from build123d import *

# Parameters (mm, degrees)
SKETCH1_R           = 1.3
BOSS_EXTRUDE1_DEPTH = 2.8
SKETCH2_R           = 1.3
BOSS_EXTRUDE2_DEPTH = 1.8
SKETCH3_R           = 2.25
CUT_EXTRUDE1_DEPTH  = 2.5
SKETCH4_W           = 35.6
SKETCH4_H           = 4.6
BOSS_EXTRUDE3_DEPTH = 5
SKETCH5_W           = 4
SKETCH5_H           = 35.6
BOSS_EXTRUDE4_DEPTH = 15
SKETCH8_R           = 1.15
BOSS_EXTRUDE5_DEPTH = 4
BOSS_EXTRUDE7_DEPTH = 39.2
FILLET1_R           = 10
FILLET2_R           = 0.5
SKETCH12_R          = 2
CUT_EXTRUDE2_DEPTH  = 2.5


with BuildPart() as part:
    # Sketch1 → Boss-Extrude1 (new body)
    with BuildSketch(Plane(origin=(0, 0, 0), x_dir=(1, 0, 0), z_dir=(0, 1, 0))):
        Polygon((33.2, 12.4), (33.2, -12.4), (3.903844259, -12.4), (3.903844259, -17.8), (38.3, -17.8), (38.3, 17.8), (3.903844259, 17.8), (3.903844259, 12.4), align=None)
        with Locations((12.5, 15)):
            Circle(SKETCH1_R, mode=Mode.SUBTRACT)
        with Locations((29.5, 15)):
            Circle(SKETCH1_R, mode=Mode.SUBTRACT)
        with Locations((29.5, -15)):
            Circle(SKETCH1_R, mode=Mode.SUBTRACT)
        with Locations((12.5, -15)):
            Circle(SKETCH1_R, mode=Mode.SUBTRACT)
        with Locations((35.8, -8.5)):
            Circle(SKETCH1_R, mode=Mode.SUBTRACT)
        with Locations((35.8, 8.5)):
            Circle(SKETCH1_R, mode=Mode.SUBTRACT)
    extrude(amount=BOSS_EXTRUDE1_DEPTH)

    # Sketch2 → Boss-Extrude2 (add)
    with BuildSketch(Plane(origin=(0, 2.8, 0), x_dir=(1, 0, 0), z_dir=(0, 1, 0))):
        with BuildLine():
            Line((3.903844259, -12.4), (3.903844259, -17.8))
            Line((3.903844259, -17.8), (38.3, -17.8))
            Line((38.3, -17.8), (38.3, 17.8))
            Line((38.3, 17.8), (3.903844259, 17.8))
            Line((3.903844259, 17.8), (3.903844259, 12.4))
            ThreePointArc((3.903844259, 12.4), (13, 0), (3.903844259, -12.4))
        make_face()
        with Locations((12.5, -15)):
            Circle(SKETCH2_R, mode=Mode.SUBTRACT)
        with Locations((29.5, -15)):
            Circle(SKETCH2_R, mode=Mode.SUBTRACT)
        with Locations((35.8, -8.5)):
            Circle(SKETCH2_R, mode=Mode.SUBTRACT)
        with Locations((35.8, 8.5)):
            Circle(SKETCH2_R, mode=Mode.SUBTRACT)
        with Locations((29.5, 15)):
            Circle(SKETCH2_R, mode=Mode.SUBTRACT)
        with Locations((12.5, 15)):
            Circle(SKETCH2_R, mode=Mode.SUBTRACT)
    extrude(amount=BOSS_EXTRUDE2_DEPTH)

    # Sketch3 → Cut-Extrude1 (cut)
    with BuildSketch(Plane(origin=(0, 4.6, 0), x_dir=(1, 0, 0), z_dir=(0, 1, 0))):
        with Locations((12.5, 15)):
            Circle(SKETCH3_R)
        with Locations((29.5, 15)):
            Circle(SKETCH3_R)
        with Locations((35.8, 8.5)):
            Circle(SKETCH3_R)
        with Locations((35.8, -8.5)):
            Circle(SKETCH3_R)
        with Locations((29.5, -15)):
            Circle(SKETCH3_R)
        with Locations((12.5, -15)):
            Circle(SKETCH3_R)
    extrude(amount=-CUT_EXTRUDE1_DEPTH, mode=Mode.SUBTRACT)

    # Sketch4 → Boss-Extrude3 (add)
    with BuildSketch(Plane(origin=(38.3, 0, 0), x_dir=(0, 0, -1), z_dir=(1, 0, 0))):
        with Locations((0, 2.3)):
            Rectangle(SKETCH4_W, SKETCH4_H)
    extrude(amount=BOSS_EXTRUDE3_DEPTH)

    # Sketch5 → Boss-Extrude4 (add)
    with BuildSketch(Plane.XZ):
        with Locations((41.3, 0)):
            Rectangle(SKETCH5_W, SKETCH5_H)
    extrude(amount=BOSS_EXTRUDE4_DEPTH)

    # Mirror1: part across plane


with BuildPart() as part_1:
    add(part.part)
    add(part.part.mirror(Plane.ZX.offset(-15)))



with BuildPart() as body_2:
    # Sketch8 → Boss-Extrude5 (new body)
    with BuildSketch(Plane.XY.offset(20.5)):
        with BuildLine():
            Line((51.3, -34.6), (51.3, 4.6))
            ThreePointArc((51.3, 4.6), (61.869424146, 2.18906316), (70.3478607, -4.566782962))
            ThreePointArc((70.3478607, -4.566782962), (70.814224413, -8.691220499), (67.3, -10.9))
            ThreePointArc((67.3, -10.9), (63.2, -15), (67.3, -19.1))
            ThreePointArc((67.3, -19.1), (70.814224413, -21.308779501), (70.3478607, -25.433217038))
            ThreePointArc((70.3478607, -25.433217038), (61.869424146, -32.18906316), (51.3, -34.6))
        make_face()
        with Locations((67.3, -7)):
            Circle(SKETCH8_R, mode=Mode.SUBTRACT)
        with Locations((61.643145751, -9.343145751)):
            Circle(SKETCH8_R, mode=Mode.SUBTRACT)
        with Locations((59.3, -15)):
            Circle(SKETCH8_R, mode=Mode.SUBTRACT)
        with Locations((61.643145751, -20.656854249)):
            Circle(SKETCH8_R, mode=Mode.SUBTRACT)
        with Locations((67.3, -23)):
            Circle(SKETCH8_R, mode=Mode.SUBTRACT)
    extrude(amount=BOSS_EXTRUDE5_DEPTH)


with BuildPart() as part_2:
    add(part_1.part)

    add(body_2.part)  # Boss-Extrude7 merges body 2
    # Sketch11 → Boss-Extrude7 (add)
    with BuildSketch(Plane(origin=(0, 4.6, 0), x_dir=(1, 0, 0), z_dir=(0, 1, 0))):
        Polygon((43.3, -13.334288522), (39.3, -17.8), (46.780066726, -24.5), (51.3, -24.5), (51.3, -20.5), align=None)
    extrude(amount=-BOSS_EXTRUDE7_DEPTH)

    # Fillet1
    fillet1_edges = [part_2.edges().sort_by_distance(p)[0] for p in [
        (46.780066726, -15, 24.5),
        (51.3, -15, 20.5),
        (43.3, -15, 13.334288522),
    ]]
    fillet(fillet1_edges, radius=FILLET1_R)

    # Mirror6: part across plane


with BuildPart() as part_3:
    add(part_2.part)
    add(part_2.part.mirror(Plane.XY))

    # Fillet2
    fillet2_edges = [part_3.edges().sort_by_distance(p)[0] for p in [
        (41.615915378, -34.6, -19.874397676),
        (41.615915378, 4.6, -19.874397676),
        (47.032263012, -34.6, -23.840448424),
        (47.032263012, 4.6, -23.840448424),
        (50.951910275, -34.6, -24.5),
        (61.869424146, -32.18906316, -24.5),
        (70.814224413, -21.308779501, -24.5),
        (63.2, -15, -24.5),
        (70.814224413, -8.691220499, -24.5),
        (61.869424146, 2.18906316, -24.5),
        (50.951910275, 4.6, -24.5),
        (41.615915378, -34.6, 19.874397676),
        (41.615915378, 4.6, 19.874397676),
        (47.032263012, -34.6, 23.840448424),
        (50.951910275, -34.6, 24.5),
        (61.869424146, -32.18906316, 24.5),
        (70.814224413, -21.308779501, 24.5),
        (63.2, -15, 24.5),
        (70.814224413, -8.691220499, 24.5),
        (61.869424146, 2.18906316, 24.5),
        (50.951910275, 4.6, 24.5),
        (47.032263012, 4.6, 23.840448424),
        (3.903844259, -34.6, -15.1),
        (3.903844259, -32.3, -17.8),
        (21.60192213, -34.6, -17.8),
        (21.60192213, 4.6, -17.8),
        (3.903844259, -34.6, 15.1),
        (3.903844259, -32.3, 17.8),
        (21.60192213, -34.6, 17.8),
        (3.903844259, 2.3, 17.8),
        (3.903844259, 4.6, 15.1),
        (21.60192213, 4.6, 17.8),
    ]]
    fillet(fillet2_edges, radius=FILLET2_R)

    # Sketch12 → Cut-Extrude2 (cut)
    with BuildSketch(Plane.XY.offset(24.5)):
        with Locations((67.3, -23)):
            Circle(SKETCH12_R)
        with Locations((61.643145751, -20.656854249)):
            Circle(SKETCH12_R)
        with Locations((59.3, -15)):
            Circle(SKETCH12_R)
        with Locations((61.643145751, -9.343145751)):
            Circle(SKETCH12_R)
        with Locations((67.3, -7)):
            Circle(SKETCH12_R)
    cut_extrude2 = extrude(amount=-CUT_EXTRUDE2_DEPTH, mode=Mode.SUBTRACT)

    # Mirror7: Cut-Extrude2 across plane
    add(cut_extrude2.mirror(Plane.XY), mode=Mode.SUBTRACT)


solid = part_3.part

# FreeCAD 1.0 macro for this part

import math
import FreeCAD as App
import Part
import Sketcher


def edges_at(feature, points):
    """Names of the edges that pass closest to the given points."""
    edges = feature.Shape.Edges
    near = lambda p: min(range(len(edges)), key=lambda i: edges[i].distToShape(Part.Vertex(*p))[0])
    return sorted({f"Edge{near(p) + 1}" for p in points})

doc = App.newDocument("Part")
body = doc.addObject("PartDesign::Body", "Body")

sketch1 = body.newObject("Sketcher::SketchObject", "Sketch")
sketch1.AttachmentSupport = (doc.getObject("XZ_Plane"), [""])
sketch1.MapMode = "FlatFace"
sketch1.addGeometry(Part.LineSegment(App.Vector(33.2, -12.4, 0), App.Vector(33.2, 12.4, 0)), False)
sketch1.addGeometry(Part.LineSegment(App.Vector(33.2, 12.4, 0), App.Vector(3.903844, 12.4, 0)), False)
sketch1.addGeometry(Part.LineSegment(App.Vector(3.903844, 12.4, 0), App.Vector(3.903844, 17.8, 0)), False)
sketch1.addGeometry(Part.LineSegment(App.Vector(3.903844, 17.8, 0), App.Vector(38.3, 17.8, 0)), False)
sketch1.addGeometry(Part.LineSegment(App.Vector(38.3, 17.8, 0), App.Vector(38.3, -17.8, 0)), False)
sketch1.addGeometry(Part.LineSegment(App.Vector(38.3, -17.8, 0), App.Vector(3.903844, -17.8, 0)), False)
sketch1.addGeometry(Part.LineSegment(App.Vector(3.903844, -17.8, 0), App.Vector(3.903844, -12.4, 0)), False)
sketch1.addGeometry(Part.LineSegment(App.Vector(3.903844, -12.4, 0), App.Vector(33.2, -12.4, 0)), False)
sketch1.addGeometry(Part.Circle(App.Vector(12.5, 15, 0), App.Vector(0, 0, 1), 1.3), False)
sketch1.addGeometry(Part.Circle(App.Vector(29.5, 15, 0), App.Vector(0, 0, 1), 1.3), False)
sketch1.addGeometry(Part.Circle(App.Vector(35.8, 8.5, 0), App.Vector(0, 0, 1), 1.3), False)
sketch1.addGeometry(Part.Circle(App.Vector(12.5, -15, 0), App.Vector(0, 0, 1), 1.3), False)
sketch1.addGeometry(Part.Circle(App.Vector(29.5, -15, 0), App.Vector(0, 0, 1), 1.3), False)
sketch1.addGeometry(Part.Circle(App.Vector(35.8, -8.5, 0), App.Vector(0, 0, 1), 1.3), False)
sketch1.addConstraint(Sketcher.Constraint("Coincident", 0, 2, 1, 1))
sketch1.addConstraint(Sketcher.Constraint("Coincident", 1, 2, 2, 1))
sketch1.addConstraint(Sketcher.Constraint("Coincident", 2, 2, 3, 1))
sketch1.addConstraint(Sketcher.Constraint("Coincident", 3, 2, 4, 1))
sketch1.addConstraint(Sketcher.Constraint("Coincident", 4, 2, 5, 1))
sketch1.addConstraint(Sketcher.Constraint("Coincident", 5, 2, 6, 1))
sketch1.addConstraint(Sketcher.Constraint("Coincident", 6, 2, 7, 1))
sketch1.addConstraint(Sketcher.Constraint("Coincident", 7, 2, 0, 1))
sketch1.addConstraint(Sketcher.Constraint("Vertical", 0))
sketch1.addConstraint(Sketcher.Constraint("Horizontal", 1))
sketch1.addConstraint(Sketcher.Constraint("Vertical", 2))
sketch1.addConstraint(Sketcher.Constraint("Horizontal", 3))
sketch1.addConstraint(Sketcher.Constraint("Vertical", 4))
sketch1.addConstraint(Sketcher.Constraint("Horizontal", 5))
sketch1.addConstraint(Sketcher.Constraint("Vertical", 6))
sketch1.addConstraint(Sketcher.Constraint("Horizontal", 7))
sketch1.addConstraint(Sketcher.Constraint("Equal", 8, 9))
sketch1.addConstraint(Sketcher.Constraint("Equal", 9, 10))
sketch1.addConstraint(Sketcher.Constraint("Equal", 10, 11))
sketch1.addConstraint(Sketcher.Constraint("Equal", 11, 12))
sketch1.addConstraint(Sketcher.Constraint("Equal", 12, 13))
sketch1.addConstraint(Sketcher.Constraint("Symmetric", 8, 3, 11, 3, -1))
sketch1.addConstraint(Sketcher.Constraint("Symmetric", 9, 3, 12, 3, -1))
sketch1.addConstraint(Sketcher.Constraint("Symmetric", 10, 3, 13, 3, -1))
sketch1.addConstraint(Sketcher.Constraint("Symmetric", 2, 2, 5, 2, -1))
sketch1.addConstraint(Sketcher.Constraint("Horizontal", 8, 3, 9, 3))
sketch1.addConstraint(Sketcher.Constraint("Equal", 2, 6))
sketch1.addConstraint(Sketcher.Constraint("Diameter", 8, 2.6))
sketch1.addConstraint(Sketcher.Constraint("DistanceY", 0, 1, 0, 2, 24.8))
sketch1.addConstraint(Sketcher.Constraint("DistanceY", 2, 1, 2, 2, 5.4))
sketch1.addConstraint(Sketcher.Constraint("DistanceY", -1, 1, 8, 3, 15.0))
sketch1.addConstraint(Sketcher.Constraint("DistanceX", 8, 3, 9, 3, 17.0))
sketch1.addConstraint(Sketcher.Constraint("DistanceY", 13, 3, 10, 3, 17.0))
sketch1.addConstraint(Sketcher.Constraint("DistanceX", -1, 1, 8, 3, 12.5))
sketch1.addConstraint(Sketcher.Constraint("DistanceX", -1, 1, 10, 3, 35.8))
sketch1.addConstraint(Sketcher.Constraint("DistanceX", -1, 1, 0, 2, 33.2))
sketch1.addConstraint(Sketcher.Constraint("DistanceX", -1, 1, 3, 2, 38.3))
sketch1.addConstraint(Sketcher.Constraint("DistanceX", 1, 2, 1, 1, 29.296156))
pad1 = body.newObject("PartDesign::Pad", "Pad")
pad1.Profile = sketch1
pad1.Length = 2.8
pad1.Reversed = True

sketch2 = body.newObject("Sketcher::SketchObject", "Sketch001")
sketch2.AttachmentSupport = (doc.getObject("XZ_Plane"), [""])
sketch2.MapMode = "FlatFace"
sketch2.AttachmentOffset = App.Placement(App.Vector(0, 0, -2.8), App.Rotation())
sketch2.addGeometry(Part.LineSegment(App.Vector(3.903844, 12.4, 0), App.Vector(3.903844, 17.8, 0)), False)
sketch2.addGeometry(Part.LineSegment(App.Vector(3.903844, 17.8, 0), App.Vector(38.3, 17.8, 0)), False)
sketch2.addGeometry(Part.LineSegment(App.Vector(38.3, 17.8, 0), App.Vector(38.3, -17.8, 0)), False)
sketch2.addGeometry(Part.LineSegment(App.Vector(38.3, -17.8, 0), App.Vector(3.903844, -17.8, 0)), False)
sketch2.addGeometry(Part.LineSegment(App.Vector(3.903844, -17.8, 0), App.Vector(3.903844, -12.4, 0)), False)
sketch2.addGeometry(Part.ArcOfCircle(Part.Circle(App.Vector(0, 0, 0), App.Vector(0, 0, 1), 13), math.radians(-72.524635), math.radians(72.524635)), False)
sketch2.addGeometry(Part.Circle(App.Vector(12.5, 15, 0), App.Vector(0, 0, 1), 1.3), False)
sketch2.addGeometry(Part.Circle(App.Vector(29.5, 15, 0), App.Vector(0, 0, 1), 1.3), False)
sketch2.addGeometry(Part.Circle(App.Vector(35.8, 8.5, 0), App.Vector(0, 0, 1), 1.3), False)
sketch2.addGeometry(Part.Circle(App.Vector(12.5, -15, 0), App.Vector(0, 0, 1), 1.3), False)
sketch2.addGeometry(Part.Circle(App.Vector(29.5, -15, 0), App.Vector(0, 0, 1), 1.3), False)
sketch2.addGeometry(Part.Circle(App.Vector(35.8, -8.5, 0), App.Vector(0, 0, 1), 1.3), False)
sketch2.addConstraint(Sketcher.Constraint("Coincident", 0, 2, 1, 1))
sketch2.addConstraint(Sketcher.Constraint("Coincident", 1, 2, 2, 1))
sketch2.addConstraint(Sketcher.Constraint("Coincident", 2, 2, 3, 1))
sketch2.addConstraint(Sketcher.Constraint("Coincident", 3, 2, 4, 1))
sketch2.addConstraint(Sketcher.Constraint("Coincident", 4, 2, 5, 1))
sketch2.addConstraint(Sketcher.Constraint("Coincident", 5, 2, 0, 1))
sketch2.addConstraint(Sketcher.Constraint("Vertical", 0))
sketch2.addConstraint(Sketcher.Constraint("Horizontal", 1))
sketch2.addConstraint(Sketcher.Constraint("Vertical", 2))
sketch2.addConstraint(Sketcher.Constraint("Horizontal", 3))
sketch2.addConstraint(Sketcher.Constraint("Vertical", 4))
sketch2.addConstraint(Sketcher.Constraint("Coincident", 5, 3, -1, 1))
sketch2.addConstraint(Sketcher.Constraint("Equal", 6, 7))
sketch2.addConstraint(Sketcher.Constraint("Equal", 7, 8))
sketch2.addConstraint(Sketcher.Constraint("Equal", 8, 9))
sketch2.addConstraint(Sketcher.Constraint("Equal", 9, 10))
sketch2.addConstraint(Sketcher.Constraint("Equal", 10, 11))
sketch2.addConstraint(Sketcher.Constraint("Symmetric", 6, 3, 9, 3, -1))
sketch2.addConstraint(Sketcher.Constraint("Symmetric", 7, 3, 10, 3, -1))
sketch2.addConstraint(Sketcher.Constraint("Symmetric", 8, 3, 11, 3, -1))
sketch2.addConstraint(Sketcher.Constraint("Symmetric", 0, 2, 3, 2, -1))
sketch2.addConstraint(Sketcher.Constraint("Horizontal", 6, 3, 7, 3))
sketch2.addConstraint(Sketcher.Constraint("Radius", 5, 13.0))
sketch2.addConstraint(Sketcher.Constraint("Diameter", 6, 2.6))
sketch2.addConstraint(Sketcher.Constraint("DistanceY", 0, 1, 0, 2, 5.4))
sketch2.addConstraint(Sketcher.Constraint("DistanceY", 2, 2, 2, 1, 35.6))
sketch2.addConstraint(Sketcher.Constraint("DistanceY", -1, 1, 6, 3, 15.0))
sketch2.addConstraint(Sketcher.Constraint("DistanceX", 6, 3, 7, 3, 17.0))
sketch2.addConstraint(Sketcher.Constraint("DistanceY", 11, 3, 8, 3, 17.0))
sketch2.addConstraint(Sketcher.Constraint("DistanceX", -1, 1, 6, 3, 12.5))
sketch2.addConstraint(Sketcher.Constraint("DistanceX", -1, 1, 8, 3, 35.8))
sketch2.addConstraint(Sketcher.Constraint("DistanceX", -1, 1, 1, 2, 38.3))
pad2 = body.newObject("PartDesign::Pad", "Pad001")
pad2.Profile = sketch2
pad2.Length = 1.8
pad2.Reversed = True

sketch3 = body.newObject("Sketcher::SketchObject", "Sketch002")
sketch3.AttachmentSupport = (doc.getObject("XZ_Plane"), [""])
sketch3.MapMode = "FlatFace"
sketch3.AttachmentOffset = App.Placement(App.Vector(0, 0, -4.6), App.Rotation())
sketch3.addGeometry(Part.Circle(App.Vector(12.5, -15, 0), App.Vector(0, 0, 1), 2.25), False)
sketch3.addGeometry(Part.Circle(App.Vector(29.5, -15, 0), App.Vector(0, 0, 1), 2.25), False)
sketch3.addGeometry(Part.Circle(App.Vector(35.8, -8.5, 0), App.Vector(0, 0, 1), 2.25), False)
sketch3.addGeometry(Part.Circle(App.Vector(35.8, 8.5, 0), App.Vector(0, 0, 1), 2.25), False)
sketch3.addGeometry(Part.Circle(App.Vector(29.5, 15, 0), App.Vector(0, 0, 1), 2.25), False)
sketch3.addGeometry(Part.Circle(App.Vector(12.5, 15, 0), App.Vector(0, 0, 1), 2.25), False)
sketch3.addConstraint(Sketcher.Constraint("Equal", 0, 1))
sketch3.addConstraint(Sketcher.Constraint("Equal", 1, 2))
sketch3.addConstraint(Sketcher.Constraint("Equal", 2, 3))
sketch3.addConstraint(Sketcher.Constraint("Equal", 3, 4))
sketch3.addConstraint(Sketcher.Constraint("Equal", 4, 5))
sketch3.addConstraint(Sketcher.Constraint("Symmetric", 2, 3, 3, 3, -1))
sketch3.addConstraint(Sketcher.Constraint("Symmetric", 1, 3, 4, 3, -1))
sketch3.addConstraint(Sketcher.Constraint("Symmetric", 0, 3, 5, 3, -1))
sketch3.addConstraint(Sketcher.Constraint("Horizontal", 0, 3, 1, 3))
sketch3.addConstraint(Sketcher.Constraint("Diameter", 0, 4.5))
sketch3.addConstraint(Sketcher.Constraint("DistanceY", 0, 3, -1, 1, 15.0))
sketch3.addConstraint(Sketcher.Constraint("DistanceX", 0, 3, 1, 3, 17.0))
sketch3.addConstraint(Sketcher.Constraint("DistanceY", 2, 3, 3, 3, 17.0))
sketch3.addConstraint(Sketcher.Constraint("DistanceX", -1, 1, 0, 3, 12.5))
sketch3.addConstraint(Sketcher.Constraint("DistanceX", -1, 1, 2, 3, 35.8))
pocket1 = body.newObject("PartDesign::Pocket", "Pocket")
pocket1.Profile = sketch3
pocket1.Length = 2.5
pocket1.Reversed = True

sketch4 = body.newObject("Sketcher::SketchObject", "Sketch003")
sketch4.AttachmentSupport = (doc.getObject("YZ_Plane"), [""])
sketch4.MapMode = "FlatFace"
sketch4.AttachmentOffset = App.Placement(App.Vector(0, 0, 38.3), App.Rotation())
sketch4.addGeometry(Part.LineSegment(App.Vector(4.6, 17.8, 0), App.Vector(0, 17.8, 0)), False)
sketch4.addGeometry(Part.LineSegment(App.Vector(0, 17.8, 0), App.Vector(0, -17.8, 0)), False)
sketch4.addGeometry(Part.LineSegment(App.Vector(0, -17.8, 0), App.Vector(4.6, -17.8, 0)), False)
sketch4.addGeometry(Part.LineSegment(App.Vector(4.6, -17.8, 0), App.Vector(4.6, 17.8, 0)), False)
sketch4.addConstraint(Sketcher.Constraint("Coincident", 0, 2, 1, 1))
sketch4.addConstraint(Sketcher.Constraint("Coincident", 1, 2, 2, 1))
sketch4.addConstraint(Sketcher.Constraint("Coincident", 2, 2, 3, 1))
sketch4.addConstraint(Sketcher.Constraint("Coincident", 3, 2, 0, 1))
sketch4.addConstraint(Sketcher.Constraint("Horizontal", 0))
sketch4.addConstraint(Sketcher.Constraint("Vertical", 1))
sketch4.addConstraint(Sketcher.Constraint("Horizontal", 2))
sketch4.addConstraint(Sketcher.Constraint("Vertical", 3))
sketch4.addConstraint(Sketcher.Constraint("Symmetric", 0, 2, 1, 2, -1, 1))
sketch4.addConstraint(Sketcher.Constraint("DistanceX", 0, 2, 0, 1, 4.6))
sketch4.addConstraint(Sketcher.Constraint("DistanceY", 1, 2, 1, 1, 35.6))
pad3 = body.newObject("PartDesign::Pad", "Pad002")
pad3.Profile = sketch4
pad3.Length = 5

sketch5 = body.newObject("Sketcher::SketchObject", "Sketch004")
sketch5.AttachmentSupport = (doc.getObject("XZ_Plane"), [""])
sketch5.MapMode = "FlatFace"
sketch5.addGeometry(Part.LineSegment(App.Vector(39.3, 17.8, 0), App.Vector(39.3, -17.8, 0)), False)
sketch5.addGeometry(Part.LineSegment(App.Vector(39.3, -17.8, 0), App.Vector(43.3, -17.8, 0)), False)
sketch5.addGeometry(Part.LineSegment(App.Vector(43.3, -17.8, 0), App.Vector(43.3, 17.8, 0)), False)
sketch5.addGeometry(Part.LineSegment(App.Vector(43.3, 17.8, 0), App.Vector(39.3, 17.8, 0)), False)
sketch5.addConstraint(Sketcher.Constraint("Coincident", 0, 2, 1, 1))
sketch5.addConstraint(Sketcher.Constraint("Coincident", 1, 2, 2, 1))
sketch5.addConstraint(Sketcher.Constraint("Coincident", 2, 2, 3, 1))
sketch5.addConstraint(Sketcher.Constraint("Coincident", 3, 2, 0, 1))
sketch5.addConstraint(Sketcher.Constraint("Vertical", 0))
sketch5.addConstraint(Sketcher.Constraint("Horizontal", 1))
sketch5.addConstraint(Sketcher.Constraint("Vertical", 2))
sketch5.addConstraint(Sketcher.Constraint("Horizontal", 3))
sketch5.addConstraint(Sketcher.Constraint("DistanceX", 1, 1, 1, 2, 4.0))
sketch5.addConstraint(Sketcher.Constraint("DistanceY", 0, 2, 0, 1, 35.6))
sketch5.addConstraint(Sketcher.Constraint("DistanceX", -1, 1, 0, 2, 39.3))
sketch5.addConstraint(Sketcher.Constraint("DistanceY", 0, 2, -1, 1, 17.8))
pad4 = body.newObject("PartDesign::Pad", "Pad003")
pad4.Profile = sketch5
pad4.Length = 15
body2 = doc.addObject("PartDesign::Body", "Body001")
doc.recompute()

body2.BaseFeature = body
doc.recompute()

mirroring = doc.addObject("Part::Mirroring", "Mirroring")
mirroring.Source = body
mirroring.Base = App.Vector(0, -15, 0)
mirroring.Normal = App.Vector(0, 1, 0)
body3 = doc.addObject("PartDesign::Body", "Body002")
body3.BaseFeature = mirroring
boolean = body2.newObject("PartDesign::Boolean", "Boolean")
boolean.Type = "Fuse"
boolean.addObjects([body3])
doc.recompute()
body4 = doc.addObject("PartDesign::Body", "Body003")

sketch6 = body4.newObject("Sketcher::SketchObject", "Sketch005")
sketch6.AttachmentSupport = (doc.getObject("XY_Plane003"), [""])
sketch6.MapMode = "FlatFace"
sketch6.AttachmentOffset = App.Placement(App.Vector(0, 0, 20.5), App.Rotation())
sketch6.addGeometry(Part.LineSegment(App.Vector(51.3, 4.6, 0), App.Vector(51.3, -34.6, 0)), False)
sketch6.addGeometry(Part.ArcOfCircle(Part.Circle(App.Vector(51.3, -10.226623, 0), App.Vector(0, 0, 1), 24.373377), math.radians(-90), math.radians(-38.601628)), False)
sketch6.addGeometry(Part.ArcOfCircle(Part.Circle(App.Vector(67.3, -23, 0), App.Vector(0, 0, 1), 3.9), math.radians(-38.601628), math.radians(90)), False)
sketch6.addGeometry(Part.ArcOfCircle(Part.Circle(App.Vector(67.3, -15, 0), App.Vector(0, 0, 1), 4.1), math.radians(90), math.radians(270)), False)
sketch6.addGeometry(Part.ArcOfCircle(Part.Circle(App.Vector(67.3, -7, 0), App.Vector(0, 0, 1), 3.9), math.radians(-90), math.radians(38.601628)), False)
sketch6.addGeometry(Part.ArcOfCircle(Part.Circle(App.Vector(51.3, -19.773377, 0), App.Vector(0, 0, 1), 24.373377), math.radians(38.601628), math.radians(90)), False)
sketch6.addGeometry(Part.Circle(App.Vector(67.3, -23, 0), App.Vector(0, 0, 1), 1.15), False)
sketch6.addGeometry(Part.Circle(App.Vector(61.643146, -20.656854, 0), App.Vector(0, 0, 1), 1.15), False)
sketch6.addGeometry(Part.Circle(App.Vector(67.3, -7, 0), App.Vector(0, 0, 1), 1.15), False)
sketch6.addGeometry(Part.Circle(App.Vector(59.3, -15, 0), App.Vector(0, 0, 1), 1.15), False)
sketch6.addGeometry(Part.Circle(App.Vector(61.643146, -9.343146, 0), App.Vector(0, 0, 1), 1.15), False)
sketch6.addConstraint(Sketcher.Constraint("Coincident", 0, 2, 1, 1))
sketch6.addConstraint(Sketcher.Constraint("Tangent", 1, 2, 2, 1))
sketch6.addConstraint(Sketcher.Constraint("Tangent", 2, 2, 3, 2))
sketch6.addConstraint(Sketcher.Constraint("Tangent", 3, 1, 4, 1))
sketch6.addConstraint(Sketcher.Constraint("Tangent", 4, 2, 5, 1))
sketch6.addConstraint(Sketcher.Constraint("Coincident", 5, 2, 0, 1))
sketch6.addConstraint(Sketcher.Constraint("Vertical", 0))
sketch6.addConstraint(Sketcher.Constraint("Coincident", 6, 3, 2, 3))
sketch6.addConstraint(Sketcher.Constraint("Coincident", 8, 3, 4, 3))
sketch6.addConstraint(Sketcher.Constraint("Equal", 2, 4))
sketch6.addConstraint(Sketcher.Constraint("Equal", 1, 5))
sketch6.addConstraint(Sketcher.Constraint("Equal", 6, 7))
sketch6.addConstraint(Sketcher.Constraint("Equal", 7, 8))
sketch6.addConstraint(Sketcher.Constraint("Equal", 8, 9))
sketch6.addConstraint(Sketcher.Constraint("Equal", 9, 10))
sketch6.addConstraint(Sketcher.Constraint("Horizontal", 3, 3, 9, 3))
sketch6.addConstraint(Sketcher.Constraint("Vertical", 2, 3, 3, 3))
sketch6.addConstraint(Sketcher.Constraint("Vertical", 3, 3, 4, 3))
sketch6.addConstraint(Sketcher.Constraint("Vertical", 1, 3, 5, 3))
sketch6.addConstraint(Sketcher.Constraint("Vertical", 7, 3, 10, 3))
sketch6.addConstraint(Sketcher.Constraint("Vertical", 5, 3, 0, 2))
sketch6.addConstraint(Sketcher.Constraint("Diameter", 6, 2.3))
sketch6.addConstraint(Sketcher.Constraint("Radius", 2, 3.9))
sketch6.addConstraint(Sketcher.Constraint("Radius", 3, 4.1))
sketch6.addConstraint(Sketcher.Constraint("DistanceY", 0, 2, 0, 1, 39.2))
sketch6.addConstraint(Sketcher.Constraint("DistanceY", 2, 3, -1, 1, 23.0))
sketch6.addConstraint(Sketcher.Constraint("DistanceX", 1, 3, 2, 3, 16.0))
sketch6.addConstraint(Sketcher.Constraint("DistanceX", 9, 3, 3, 3, 8.0))
sketch6.addConstraint(Sketcher.Constraint("DistanceX", -1, 1, 1, 3, 51.3))
sketch6.addConstraint(Sketcher.Constraint("DistanceY", 7, 3, 1, 3, 10.430231))
sketch6.addConstraint(Sketcher.Constraint("DistanceX", -1, 1, 7, 3, 61.643146))
sketch6.addConstraint(Sketcher.Constraint("DistanceY", 10, 3, -1, 1, 9.343146))
pad5 = body4.newObject("PartDesign::Pad", "Pad004")
pad5.Profile = sketch6
pad5.Length = 4
body2.AllowCompound = True
doc.recompute()

boolean2 = body2.newObject("PartDesign::Boolean", "Boolean001")
boolean2.Type = "Fuse"
boolean2.addObjects([body4])

sketch7 = body2.newObject("Sketcher::SketchObject", "Sketch006")
sketch7.AttachmentSupport = (doc.getObject("XZ_Plane001"), [""])
sketch7.MapMode = "FlatFace"
sketch7.AttachmentOffset = App.Placement(App.Vector(0, 0, -4.6), App.Rotation())
sketch7.addGeometry(Part.LineSegment(App.Vector(43.3, 13.334289, 0), App.Vector(39.3, 17.8, 0)), False)
sketch7.addGeometry(Part.LineSegment(App.Vector(39.3, 17.8, 0), App.Vector(46.780067, 24.5, 0)), False)
sketch7.addGeometry(Part.LineSegment(App.Vector(46.780067, 24.5, 0), App.Vector(51.3, 24.5, 0)), False)
sketch7.addGeometry(Part.LineSegment(App.Vector(51.3, 24.5, 0), App.Vector(51.3, 20.5, 0)), False)
sketch7.addGeometry(Part.LineSegment(App.Vector(51.3, 20.5, 0), App.Vector(43.3, 13.334289, 0)), False)
sketch7.addConstraint(Sketcher.Constraint("Coincident", 0, 2, 1, 1))
sketch7.addConstraint(Sketcher.Constraint("Coincident", 1, 2, 2, 1))
sketch7.addConstraint(Sketcher.Constraint("Coincident", 2, 2, 3, 1))
sketch7.addConstraint(Sketcher.Constraint("Coincident", 3, 2, 4, 1))
sketch7.addConstraint(Sketcher.Constraint("Coincident", 4, 2, 0, 1))
sketch7.addConstraint(Sketcher.Constraint("Horizontal", 2))
sketch7.addConstraint(Sketcher.Constraint("Vertical", 3))
sketch7.addConstraint(Sketcher.Constraint("Perpendicular", 0, 1))
sketch7.addConstraint(Sketcher.Constraint("Parallel", 1, 4))
sketch7.addConstraint(Sketcher.Constraint("DistanceY", 3, 2, 3, 1, 4.0))
sketch7.addConstraint(Sketcher.Constraint("DistanceX", 0, 2, 2, 2, 12.0))
sketch7.addConstraint(Sketcher.Constraint("DistanceX", 0, 2, 4, 2, 4.0))
sketch7.addConstraint(Sketcher.Constraint("DistanceX", -1, 1, 0, 2, 39.3))
sketch7.addConstraint(Sketcher.Constraint("DistanceY", -1, 1, 0, 2, 17.8))
sketch7.addConstraint(Sketcher.Constraint("DistanceY", -1, 1, 1, 2, 24.5))
pad6 = body2.newObject("PartDesign::Pad", "Pad005")
pad6.Profile = sketch7
pad6.Length = 39.2
doc.recompute()

fillet = body2.newObject("PartDesign::Fillet", "Fillet")
fillet.Base = (pad6, edges_at(pad6, [(46.78, -15, 24.5), (51.3, -15, 20.5), (43.3, -15, 13.334)]))
fillet.Radius = 10
body5 = doc.addObject("PartDesign::Body", "Body004")
doc.recompute()

body5.BaseFeature = body2
doc.recompute()

mirroring2 = doc.addObject("Part::Mirroring", "Mirroring001")
mirroring2.Source = body2
mirroring2.Base = App.Vector(0, 0, 0)
mirroring2.Normal = App.Vector(0, 0, 1)
body6 = doc.addObject("PartDesign::Body", "Body005")
body6.BaseFeature = mirroring2
boolean3 = body5.newObject("PartDesign::Boolean", "Boolean002")
boolean3.Type = "Fuse"
boolean3.addObjects([body6])
doc.recompute()

fillet2 = body5.newObject("PartDesign::Fillet", "Fillet001")
fillet2.Base = (boolean3, edges_at(boolean3, [
    (41.616, -34.6, -19.874),
    (41.616, 4.6, -19.874),
    (47.032, -34.6, -23.84),
    (47.032, 4.6, -23.84),
    (50.952, -34.6, -24.5),
    (61.869, -32.189, -24.5),
    (70.814, -21.309, -24.5),
    (63.2, -15, -24.5),
    (70.814, -8.691, -24.5),
    (61.869, 2.189, -24.5),
    (50.952, 4.6, -24.5),
    (41.616, -34.6, 19.874),
    (41.616, 4.6, 19.874),
    (47.032, -34.6, 23.84),
    (50.952, -34.6, 24.5),
    (61.869, -32.189, 24.5),
    (70.814, -21.309, 24.5),
    (63.2, -15, 24.5),
    (70.814, -8.691, 24.5),
    (61.869, 2.189, 24.5),
    (50.952, 4.6, 24.5),
    (47.032, 4.6, 23.84),
    (3.904, -34.6, -15.1),
    (3.904, -32.3, -17.8),
    (21.602, -34.6, -17.8),
    (21.602, 4.6, -17.8),
    (3.904, -34.6, 15.1),
    (3.904, -32.3, 17.8),
    (21.602, -34.6, 17.8),
    (3.904, 2.3, 17.8),
    (3.904, 4.6, 15.1),
    (21.602, 4.6, 17.8),
]))
fillet2.Radius = 0.5

sketch8 = body5.newObject("Sketcher::SketchObject", "Sketch007")
sketch8.AttachmentSupport = (doc.getObject("XY_Plane004"), [""])
sketch8.MapMode = "FlatFace"
sketch8.AttachmentOffset = App.Placement(App.Vector(0, 0, 24.5), App.Rotation())
sketch8.addGeometry(Part.Circle(App.Vector(67.3, -23, 0), App.Vector(0, 0, 1), 2), False)
sketch8.addGeometry(Part.Circle(App.Vector(61.643146, -20.656854, 0), App.Vector(0, 0, 1), 2), False)
sketch8.addGeometry(Part.Circle(App.Vector(59.3, -15, 0), App.Vector(0, 0, 1), 2), False)
sketch8.addGeometry(Part.Circle(App.Vector(61.643146, -9.343146, 0), App.Vector(0, 0, 1), 2), False)
sketch8.addGeometry(Part.Circle(App.Vector(67.3, -7, 0), App.Vector(0, 0, 1), 2), False)
sketch8.addConstraint(Sketcher.Constraint("Equal", 0, 1))
sketch8.addConstraint(Sketcher.Constraint("Equal", 1, 2))
sketch8.addConstraint(Sketcher.Constraint("Equal", 2, 3))
sketch8.addConstraint(Sketcher.Constraint("Equal", 3, 4))
sketch8.addConstraint(Sketcher.Constraint("Vertical", 1, 3, 3, 3))
sketch8.addConstraint(Sketcher.Constraint("Vertical", 0, 3, 4, 3))
sketch8.addConstraint(Sketcher.Constraint("Diameter", 0, 4.0))
sketch8.addConstraint(Sketcher.Constraint("DistanceY", 0, 3, -1, 1, 23.0))
sketch8.addConstraint(Sketcher.Constraint("DistanceY", 2, 3, -1, 1, 15.0))
sketch8.addConstraint(Sketcher.Constraint("DistanceY", 4, 3, -1, 1, 7.0))
sketch8.addConstraint(Sketcher.Constraint("DistanceX", 2, 3, 0, 3, 8.0))
sketch8.addConstraint(Sketcher.Constraint("DistanceX", -1, 1, 0, 3, 67.3))
sketch8.addConstraint(Sketcher.Constraint("DistanceY", 1, 3, 3, 3, 11.313708))
sketch8.addConstraint(Sketcher.Constraint("DistanceX", -1, 1, 1, 3, 61.643146))
sketch8.addConstraint(Sketcher.Constraint("DistanceY", 1, 3, -1, 1, 20.656854))
pocket2 = body5.newObject("PartDesign::Pocket", "Pocket001")
pocket2.Profile = sketch8
pocket2.Length = 2.5
doc.recompute()

mirrored = body5.newObject("PartDesign::Mirrored", "Mirrored")
mirrored.Originals = [pocket2]
mirrored.MirrorPlane = (doc.getObject("XY_Plane004"), [""])
body5.Tip = mirrored
mirroring.Visibility = False
mirroring2.Visibility = False

doc.recompute()
